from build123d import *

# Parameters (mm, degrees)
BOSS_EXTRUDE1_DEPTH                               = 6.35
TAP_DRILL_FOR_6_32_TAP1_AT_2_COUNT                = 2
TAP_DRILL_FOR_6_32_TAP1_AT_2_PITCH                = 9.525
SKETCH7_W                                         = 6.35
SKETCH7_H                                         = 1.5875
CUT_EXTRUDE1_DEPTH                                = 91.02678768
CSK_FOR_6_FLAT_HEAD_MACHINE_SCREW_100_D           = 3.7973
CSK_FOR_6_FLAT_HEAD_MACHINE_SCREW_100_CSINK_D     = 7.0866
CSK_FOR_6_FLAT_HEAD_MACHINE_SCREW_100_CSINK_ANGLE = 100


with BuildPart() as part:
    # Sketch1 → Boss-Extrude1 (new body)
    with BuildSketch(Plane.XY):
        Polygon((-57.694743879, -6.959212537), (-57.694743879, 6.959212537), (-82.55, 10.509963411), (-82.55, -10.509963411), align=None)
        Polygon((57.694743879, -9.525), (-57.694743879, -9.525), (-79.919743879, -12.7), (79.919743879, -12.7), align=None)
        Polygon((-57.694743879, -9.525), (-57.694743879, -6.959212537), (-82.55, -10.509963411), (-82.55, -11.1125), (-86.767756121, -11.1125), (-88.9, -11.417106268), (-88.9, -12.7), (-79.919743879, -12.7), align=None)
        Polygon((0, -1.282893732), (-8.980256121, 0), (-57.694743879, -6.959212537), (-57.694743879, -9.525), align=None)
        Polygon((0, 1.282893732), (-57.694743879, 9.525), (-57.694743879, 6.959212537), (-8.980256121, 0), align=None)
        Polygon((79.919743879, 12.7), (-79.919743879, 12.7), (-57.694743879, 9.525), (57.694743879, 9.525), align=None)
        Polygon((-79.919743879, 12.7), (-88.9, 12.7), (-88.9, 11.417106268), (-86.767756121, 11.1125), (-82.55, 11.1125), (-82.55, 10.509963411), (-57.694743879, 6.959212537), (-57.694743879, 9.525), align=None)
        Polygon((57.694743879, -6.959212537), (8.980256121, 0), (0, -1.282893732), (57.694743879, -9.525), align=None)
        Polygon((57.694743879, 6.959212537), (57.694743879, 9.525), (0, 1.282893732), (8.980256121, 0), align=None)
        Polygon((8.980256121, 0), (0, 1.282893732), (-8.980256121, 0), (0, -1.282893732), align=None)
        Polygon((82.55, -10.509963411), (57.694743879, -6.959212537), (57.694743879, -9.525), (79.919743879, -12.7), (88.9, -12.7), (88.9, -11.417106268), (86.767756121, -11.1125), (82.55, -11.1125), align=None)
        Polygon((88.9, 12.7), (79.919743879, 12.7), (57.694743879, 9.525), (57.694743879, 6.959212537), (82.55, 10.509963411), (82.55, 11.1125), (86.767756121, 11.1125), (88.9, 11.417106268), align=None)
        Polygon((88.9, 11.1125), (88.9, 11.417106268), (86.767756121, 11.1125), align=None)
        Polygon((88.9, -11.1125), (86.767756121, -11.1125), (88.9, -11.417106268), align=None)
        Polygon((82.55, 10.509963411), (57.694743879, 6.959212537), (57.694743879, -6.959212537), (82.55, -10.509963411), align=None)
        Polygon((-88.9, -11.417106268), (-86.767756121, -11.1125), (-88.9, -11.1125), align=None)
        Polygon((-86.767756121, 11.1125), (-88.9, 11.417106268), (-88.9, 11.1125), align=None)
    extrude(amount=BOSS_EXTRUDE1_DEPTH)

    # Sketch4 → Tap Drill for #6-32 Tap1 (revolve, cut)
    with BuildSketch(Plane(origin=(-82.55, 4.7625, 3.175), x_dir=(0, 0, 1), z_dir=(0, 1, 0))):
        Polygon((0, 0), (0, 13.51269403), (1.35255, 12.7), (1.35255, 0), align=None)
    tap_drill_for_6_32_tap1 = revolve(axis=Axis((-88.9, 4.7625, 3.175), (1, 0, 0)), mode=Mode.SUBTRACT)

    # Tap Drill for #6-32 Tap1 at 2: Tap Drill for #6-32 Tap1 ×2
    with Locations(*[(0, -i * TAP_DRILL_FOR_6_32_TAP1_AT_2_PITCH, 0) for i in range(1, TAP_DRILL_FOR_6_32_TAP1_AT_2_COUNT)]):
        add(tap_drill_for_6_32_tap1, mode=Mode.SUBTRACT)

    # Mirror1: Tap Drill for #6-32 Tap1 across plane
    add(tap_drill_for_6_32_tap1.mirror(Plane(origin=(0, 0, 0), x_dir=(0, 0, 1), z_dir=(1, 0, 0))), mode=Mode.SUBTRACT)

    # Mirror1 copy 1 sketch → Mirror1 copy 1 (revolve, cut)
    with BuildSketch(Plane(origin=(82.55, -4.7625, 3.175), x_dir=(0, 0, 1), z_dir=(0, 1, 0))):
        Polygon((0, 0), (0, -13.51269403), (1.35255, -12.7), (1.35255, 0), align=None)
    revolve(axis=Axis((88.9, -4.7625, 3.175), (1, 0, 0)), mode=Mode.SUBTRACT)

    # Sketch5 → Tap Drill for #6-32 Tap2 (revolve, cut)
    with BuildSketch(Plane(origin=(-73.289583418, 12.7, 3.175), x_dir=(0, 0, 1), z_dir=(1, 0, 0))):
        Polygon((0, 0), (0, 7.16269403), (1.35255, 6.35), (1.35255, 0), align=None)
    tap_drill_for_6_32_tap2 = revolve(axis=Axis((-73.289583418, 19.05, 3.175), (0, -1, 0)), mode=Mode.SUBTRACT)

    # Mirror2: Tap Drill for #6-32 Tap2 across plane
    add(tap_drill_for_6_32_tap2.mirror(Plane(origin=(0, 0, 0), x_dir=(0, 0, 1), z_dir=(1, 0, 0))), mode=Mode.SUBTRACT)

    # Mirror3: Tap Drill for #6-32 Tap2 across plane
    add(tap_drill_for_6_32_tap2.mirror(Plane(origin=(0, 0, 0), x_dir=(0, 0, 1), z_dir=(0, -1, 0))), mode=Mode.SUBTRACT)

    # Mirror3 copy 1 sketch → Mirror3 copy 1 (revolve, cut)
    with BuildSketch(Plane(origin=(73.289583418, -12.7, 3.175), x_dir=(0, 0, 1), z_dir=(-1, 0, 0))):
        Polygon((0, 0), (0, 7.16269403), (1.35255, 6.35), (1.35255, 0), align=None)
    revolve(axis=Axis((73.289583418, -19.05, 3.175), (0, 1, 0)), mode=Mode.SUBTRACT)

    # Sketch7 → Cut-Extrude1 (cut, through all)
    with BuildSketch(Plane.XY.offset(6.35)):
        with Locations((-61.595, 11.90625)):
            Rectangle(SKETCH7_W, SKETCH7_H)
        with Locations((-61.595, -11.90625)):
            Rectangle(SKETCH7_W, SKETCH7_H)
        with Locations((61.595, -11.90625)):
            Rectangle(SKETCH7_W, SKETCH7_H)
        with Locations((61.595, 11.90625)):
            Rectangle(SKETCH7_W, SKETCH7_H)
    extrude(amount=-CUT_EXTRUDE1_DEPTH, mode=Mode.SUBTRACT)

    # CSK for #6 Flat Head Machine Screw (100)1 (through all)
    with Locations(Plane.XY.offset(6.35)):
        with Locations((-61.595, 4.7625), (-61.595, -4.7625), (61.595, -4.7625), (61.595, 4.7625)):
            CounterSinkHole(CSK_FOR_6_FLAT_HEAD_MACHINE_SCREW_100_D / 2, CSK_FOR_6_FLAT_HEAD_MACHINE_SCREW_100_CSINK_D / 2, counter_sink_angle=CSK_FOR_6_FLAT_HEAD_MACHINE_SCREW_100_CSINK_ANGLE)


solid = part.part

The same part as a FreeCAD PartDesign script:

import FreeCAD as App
import Part
import Sketcher
Q = App.Units.Quantity


def add_polygon(sketch, points):
    """Adds a closed chain of lines whose ends are joined by coincident constraints."""
    first, n = sketch.GeometryCount, len(points)
    for a, b in zip(points, points[1:] + points[:1]):
        sketch.addGeometry(Part.LineSegment(App.Vector(*a, 0), App.Vector(*b, 0)), False)
    for i in range(n):
        sketch.addConstraint(Sketcher.Constraint("Coincident", first + i, 2, first + (i + 1) % n, 1))

doc = App.newDocument("Part")
body = doc.addObject("PartDesign::Body", "Body")

# Sketch on XY plane
sketch1 = body.newObject("Sketcher::SketchObject", "Sketch")
sketch1.AttachmentSupport = (doc.getObject("XY_Plane"), [""])
sketch1.MapMode = "FlatFace"
add_polygon(sketch1, [(82.5, 11.1), (88.9, 11.1), (88.9, 12.7), (-88.9, 12.7), (-88.9, 11.1), (-82.5, 11.1), (-82.5, -11.1), (-88.9, -11.1), (-88.9, -12.7), (88.9, -12.7), (88.9, -11.1), (82.5, -11.1)])  # lines 0-11
add_polygon(sketch1, [(9, 0), (57.7, 7), (57.7, -7)])  # lines 12-14
add_polygon(sketch1, [(0, -1.3), (57.7, -9.5), (-57.7, -9.5)])  # lines 15-17
add_polygon(sketch1, [(-57.7, 7), (-9, 0), (-57.7, -7)])  # lines 18-20
add_polygon(sketch1, [(-57.7, 9.5), (57.7, 9.5), (0, 1.3)])  # lines 21-23
sketch1.addConstraint(Sketcher.Constraint("Horizontal", 0))
sketch1.addConstraint(Sketcher.Constraint("Vertical", 1))
sketch1.addConstraint(Sketcher.Constraint("Horizontal", 2))
sketch1.addConstraint(Sketcher.Constraint("Vertical", 3))
sketch1.addConstraint(Sketcher.Constraint("Horizontal", 4))
sketch1.addConstraint(Sketcher.Constraint("Vertical", 5))
sketch1.addConstraint(Sketcher.Constraint("Horizontal", 6))
sketch1.addConstraint(Sketcher.Constraint("Vertical", 7))
sketch1.addConstraint(Sketcher.Constraint("Horizontal", 8))
sketch1.addConstraint(Sketcher.Constraint("Vertical", 9))
sketch1.addConstraint(Sketcher.Constraint("Horizontal", 10))
sketch1.addConstraint(Sketcher.Constraint("Vertical", 11))
sketch1.addConstraint(Sketcher.Constraint("Vertical", 13))
sketch1.addConstraint(Sketcher.Constraint("Horizontal", 16))
sketch1.addConstraint(Sketcher.Constraint("Vertical", 20))
sketch1.addConstraint(Sketcher.Constraint("Horizontal", 21))
sketch1.addConstraint(Sketcher.Constraint("Symmetric", 0, 2, 6, 2, -1, 1))
sketch1.addConstraint(Sketcher.Constraint("Symmetric", 2, 2, 8, 2, -1, 1))
sketch1.addConstraint(Sketcher.Constraint("Symmetric", 4, 2, 10, 2, -1, 1))
sketch1.addConstraint(Sketcher.Constraint("Symmetric", 14, 2, 18, 2, -1, 1))
sketch1.addConstraint(Sketcher.Constraint("Symmetric", 12, 2, 19, 2, -1, 1))
sketch1.addConstraint(Sketcher.Constraint("Symmetric", 16, 2, 21, 2, -1, 1))
sketch1.addConstraint(Sketcher.Constraint("Symmetric", 17, 2, 22, 2, -1, 1))
sketch1.addConstraint(Sketcher.Constraint("Symmetric", 0, 2, 3, 2, -2))
sketch1.addConstraint(Sketcher.Constraint("PointOnObject", 14, 2, -1))
sketch1.addConstraint(Sketcher.Constraint("PointOnObject", 17, 2, -2))
sketch1.addConstraint(Sketcher.Constraint("Parallel", 14, 15))
sketch1.addConstraint(Sketcher.Constraint("Parallel", 12, 17))
sketch1.addConstraint(Sketcher.Constraint("Parallel", 15, 18))
sketch1.addConstraint(Sketcher.Constraint("Parallel", 18, 23))
sketch1.addConstraint(Sketcher.Constraint("Horizontal", 13, 2, 19, 2))
sketch1.addConstraint(Sketcher.Constraint("Vertical", 13, 2, 15, 2))
sketch1.addConstraint(Sketcher.Constraint("DistanceX", 2, 2, 2, 1, Q("7 in")))
sketch1.addConstraint(Sketcher.Constraint("DistanceY", 7, 2, 2, 2, Q("1 in")))
sketch1.addConstraint(Sketcher.Constraint("DistanceX", 0, 1, 0, 2, Q("0.25 in")))
sketch1.addConstraint(Sketcher.Constraint("DistanceY", 1, 1, 1, 2, Q("0.0625 in")))
sketch1.addConstraint(Sketcher.Constraint("DistanceY", 15, 2, 21, 2, Q("0.75 in")))
sketch1.addConstraint(Sketcher.Constraint("DistanceX", 18, 2, 12, 2, Q("2.625 in")))
sketch1.addConstraint(Sketcher.Constraint("DistanceX", 16, 2, 16, 1, 115.389488))
sketch1.addConstraint(Sketcher.Constraint("DistanceY", 13, 2, 13, 1, 13.918425))
pad1 = body.newObject("PartDesign::Pad", "Pad")
pad1.Profile = sketch1
pad1.Length = Q("0.25 in")

# Sketch on XZ plane
sketch2 = body.newObject("Sketcher::SketchObject", "Sketch001")
sketch2.AttachmentSupport = (doc.getObject("XZ_Plane"), [""])
sketch2.MapMode = "FlatFace"
sketch2.AttachmentOffset = App.Placement(App.Vector(0, 0, -0.1875 * 25.4), App.Rotation())
add_polygon(sketch2, [(-69, 3.2), (-82.5, 3.2), (-82.5, 4.5), (-69.8, 4.5)])  # lines 0-3
sketch2.addGeometry(Part.LineSegment(App.Vector(-82.5, 3.2, 0), App.Vector(-69, 3.2, 0)), True)  # axis
sketch2.addConstraint(Sketcher.Constraint("Horizontal", 0))
sketch2.addConstraint(Sketcher.Constraint("Vertical", 1))
sketch2.addConstraint(Sketcher.Constraint("Horizontal", 2))
sketch2.addConstraint(Sketcher.Constraint("Horizontal", 4))
sketch2.addConstraint(Sketcher.Constraint("Coincident", 4, 1, 0, 2))
sketch2.addConstraint(Sketcher.Constraint("Equal", 0, 4))
sketch2.addConstraint(Sketcher.Constraint("DistanceX", 2, 1, 2, 2, Q("0.5 in")))
sketch2.addConstraint(Sketcher.Constraint("Angle", 3, Q("-59 deg")))
sketch2.addConstraint(Sketcher.Constraint("DistanceX", 0, 2, -1, 1, Q("3.25 in")))
sketch2.addConstraint(Sketcher.Constraint("DistanceY", -1, 1, 0, 2, Q("0.125 in")))
sketch2.addConstraint(Sketcher.Constraint("DistanceY", 1, 1, 1, 2, 1.35255))
groove = body.newObject("PartDesign::Groove", "Groove")
groove.Profile = sketch2
groove.ReferenceAxis = (sketch2, ["Axis0"])
groove.Angle = 360
doc.recompute()

linearpattern = body.newObject("PartDesign::LinearPattern", "LinearPattern")
linearpattern.Originals = [groove]
linearpattern.Direction = (doc.getObject("Y_Axis"), [""])
linearpattern.Mode = "offset"
linearpattern.Offset = Q("0.375 in")
linearpattern.Occurrences = 2
linearpattern.Reversed = True
body.Tip = linearpattern
doc.recompute()

mirrored = body.newObject("PartDesign::Mirrored", "Mirrored")
mirrored.Originals = [groove]
mirrored.MirrorPlane = (doc.getObject("YZ_Plane"), [""])
body.Tip = mirrored

# Sketch on XZ plane
sketch3 = body.newObject("Sketcher::SketchObject", "Sketch002")
sketch3.AttachmentSupport = (doc.getObject("XZ_Plane"), [""])
sketch3.MapMode = "FlatFace"
sketch3.AttachmentOffset = App.Placement(App.Vector(0, 0, 0.1875 * 25.4), App.Rotation())
add_polygon(sketch3, [(82.5, 3.2), (69, 3.2), (69.8, 4.5), (82.5, 4.5)])  # lines 0-3
sketch3.addGeometry(Part.LineSegment(App.Vector(69, 3.2, 0), App.Vector(82.5, 3.2, 0)), True)  # axis
sketch3.addConstraint(Sketcher.Constraint("Horizontal", 0))
sketch3.addConstraint(Sketcher.Constraint("Horizontal", 2))
sketch3.addConstraint(Sketcher.Constraint("Vertical", 3))
sketch3.addConstraint(Sketcher.Constraint("Horizontal", 4))
sketch3.addConstraint(Sketcher.Constraint("Coincident", 4, 1, 0, 2))
sketch3.addConstraint(Sketcher.Constraint("Vertical", 2, 2, 4, 2))
sketch3.addConstraint(Sketcher.Constraint("DistanceX", 2, 1, 2, 2, Q("0.5 in")))
sketch3.addConstraint(Sketcher.Constraint("Angle", 1, Q("59 deg")))
sketch3.addConstraint(Sketcher.Constraint("DistanceX", -1, 1, 1, 2, Q("2.75 in")))
sketch3.addConstraint(Sketcher.Constraint("DistanceY", -1, 1, 0, 2, Q("0.125 in")))
sketch3.addConstraint(Sketcher.Constraint("DistanceY", 3, 2, 3, 1, 1.35255))
groove2 = body.newObject("PartDesign::Groove", "Groove001")
groove2.Profile = sketch3
groove2.ReferenceAxis = (sketch3, ["Axis0"])
groove2.Angle = 360

# Sketch on YZ plane
sketch4 = body.newObject("Sketcher::SketchObject", "Sketch003")
sketch4.AttachmentSupport = (doc.getObject("YZ_Plane"), [""])
sketch4.MapMode = "FlatFace"
sketch4.AttachmentOffset = App.Placement(App.Vector(0, 0, -73.289583), App.Rotation())
add_polygon(sketch4, [(5.5, 3.2), (12.7, 3.2), (12.7, 4.5), (6.3, 4.5)])  # lines 0-3
sketch4.addGeometry(Part.LineSegment(App.Vector(12.7, 3.2, 0), App.Vector(5.5, 3.2, 0)), True)  # axis
sketch4.addConstraint(Sketcher.Constraint("Horizontal", 0))
sketch4.addConstraint(Sketcher.Constraint("Vertical", 1))
sketch4.addConstraint(Sketcher.Constraint("Horizontal", 2))
sketch4.addConstraint(Sketcher.Constraint("Horizontal", 4))
sketch4.addConstraint(Sketcher.Constraint("Coincident", 4, 1, 0, 2))
sketch4.addConstraint(Sketcher.Constraint("Equal", 0, 4))
sketch4.addConstraint(Sketcher.Constraint("Angle", 3, Q("-121 deg")))
sketch4.addConstraint(Sketcher.Constraint("DistanceX", 2, 2, 2, 1, Q("0.25 in")))
sketch4.addConstraint(Sketcher.Constraint("DistanceX", -1, 1, 0, 2, Q("0.5 in")))
sketch4.addConstraint(Sketcher.Constraint("DistanceY", -1, 1, 0, 2, Q("0.125 in")))
sketch4.addConstraint(Sketcher.Constraint("DistanceY", 1, 1, 1, 2, 1.35255))
groove3 = body.newObject("PartDesign::Groove", "Groove002")
groove3.Profile = sketch4
groove3.ReferenceAxis = (sketch4, ["Axis0"])
groove3.Angle = 360
doc.recompute()

mirrored2 = body.newObject("PartDesign::Mirrored", "Mirrored001")
mirrored2.Originals = [groove3]
mirrored2.MirrorPlane = (doc.getObject("YZ_Plane"), [""])
body.Tip = mirrored2
doc.recompute()

mirrored3 = body.newObject("PartDesign::Mirrored", "Mirrored002")
mirrored3.Originals = [groove3]
mirrored3.MirrorPlane = (doc.getObject("XZ_Plane"), [""])
body.Tip = mirrored3

# Sketch on YZ plane
sketch5 = body.newObject("Sketcher::SketchObject", "Sketch004")
sketch5.AttachmentSupport = (doc.getObject("YZ_Plane"), [""])
sketch5.MapMode = "FlatFace"
sketch5.AttachmentOffset = App.Placement(App.Vector(0, 0, 73.289583), App.Rotation())
add_polygon(sketch5, [(-5.5, 3.2), (-12.7, 3.2), (-12.7, 4.5), (-6.3, 4.5)])  # lines 0-3
sketch5.addGeometry(Part.LineSegment(App.Vector(-12.7, 3.2, 0), App.Vector(-5.5, 3.2, 0)), True)  # axis
sketch5.addConstraint(Sketcher.Constraint("Horizontal", 0))
sketch5.addConstraint(Sketcher.Constraint("Vertical", 1))
sketch5.addConstraint(Sketcher.Constraint("Horizontal", 2))
sketch5.addConstraint(Sketcher.Constraint("Horizontal", 4))
sketch5.addConstraint(Sketcher.Constraint("Coincident", 4, 1, 0, 2))
sketch5.addConstraint(Sketcher.Constraint("Equal", 0, 4))
sketch5.addConstraint(Sketcher.Constraint("Angle", 3, Q("-59 deg")))
sketch5.addConstraint(Sketcher.Constraint("DistanceX", 2, 1, 2, 2, Q("0.25 in")))
sketch5.addConstraint(Sketcher.Constraint("DistanceX", 0, 2, -1, 1, Q("0.5 in")))
sketch5.addConstraint(Sketcher.Constraint("DistanceY", -1, 1, 0, 2, Q("0.125 in")))
sketch5.addConstraint(Sketcher.Constraint("DistanceY", 1, 1, 1, 2, 1.35255))
groove4 = body.newObject("PartDesign::Groove", "Groove003")
groove4.Profile = sketch5
groove4.ReferenceAxis = (sketch5, ["Axis0"])
groove4.Angle = 360

# Sketch on XY plane
sketch6 = body.newObject("Sketcher::SketchObject", "Sketch005")
sketch6.AttachmentSupport = (doc.getObject("XY_Plane"), [""])
sketch6.MapMode = "FlatFace"
sketch6.AttachmentOffset = App.Placement(App.Vector(0, 0, 0.25 * 25.4), App.Rotation())
add_polygon(sketch6, [(-64.8, 12.7), (-64.8, 11.1), (-58.4, 11.1), (-58.4, 12.7)])  # lines 0-3
add_polygon(sketch6, [(-64.8, -11.1), (-64.8, -12.7), (-58.4, -12.7), (-58.4, -11.1)])  # lines 4-7
add_polygon(sketch6, [(58.4, -11.1), (58.4, -12.7), (64.8, -12.7), (64.8, -11.1)])  # lines 8-11
add_polygon(sketch6, [(58.4, 12.7), (58.4, 11.1), (64.8, 11.1), (64.8, 12.7)])  # lines 12-15
sketch6.addConstraint(Sketcher.Constraint("Vertical", 0))
sketch6.addConstraint(Sketcher.Constraint("Horizontal", 1))
sketch6.addConstraint(Sketcher.Constraint("Vertical", 2))
sketch6.addConstraint(Sketcher.Constraint("Horizontal", 3))
sketch6.addConstraint(Sketcher.Constraint("Vertical", 4))
sketch6.addConstraint(Sketcher.Constraint("Horizontal", 5))
sketch6.addConstraint(Sketcher.Constraint("Vertical", 6))
sketch6.addConstraint(Sketcher.Constraint("Horizontal", 7))
sketch6.addConstraint(Sketcher.Constraint("Vertical", 8))
sketch6.addConstraint(Sketcher.Constraint("Horizontal", 9))
sketch6.addConstraint(Sketcher.Constraint("Vertical", 10))
sketch6.addConstraint(Sketcher.Constraint("Horizontal", 11))
sketch6.addConstraint(Sketcher.Constraint("Vertical", 12))
sketch6.addConstraint(Sketcher.Constraint("Horizontal", 13))
sketch6.addConstraint(Sketcher.Constraint("Vertical", 14))
sketch6.addConstraint(Sketcher.Constraint("Horizontal", 15))
sketch6.addConstraint(Sketcher.Constraint("Symmetric", 2, 2, 8, 2, -1, 1))
sketch6.addConstraint(Sketcher.Constraint("Symmetric", 0, 2, 10, 2, -1, 1))
sketch6.addConstraint(Sketcher.Constraint("Symmetric", 6, 2, 12, 2, -1, 1))
sketch6.addConstraint(Sketcher.Constraint("Symmetric", 4, 2, 14, 2, -1, 1))
sketch6.addConstraint(Sketcher.Constraint("Symmetric", 5, 2, 8, 2, -2))
sketch6.addConstraint(Sketcher.Constraint("Symmetric", 7, 2, 10, 2, -2))
sketch6.addConstraint(Sketcher.Constraint("DistanceY", 4, 2, 3, 2, Q("1 in")))
sketch6.addConstraint(Sketcher.Constraint("DistanceX", 1, 1, 1, 2, Q("0.25 in")))
sketch6.addConstraint(Sketcher.Constraint("DistanceX", 1, 2, -1, 1, Q("2.3 in")))
sketch6.addConstraint(Sketcher.Constraint("DistanceY", 0, 2, 0, 1, Q("0.0625 in")))
pocket1 = body.newObject("PartDesign::Pocket", "Pocket")
pocket1.Profile = sketch6
pocket1.Type = "ThroughAll"

# Sketch on XY plane
sketch7 = body.newObject("Sketcher::SketchObject", "Sketch006")
sketch7.AttachmentSupport = (doc.getObject("XY_Plane"), [""])
sketch7.MapMode = "FlatFace"
sketch7.AttachmentOffset = App.Placement(App.Vector(0, 0, 0.25 * 25.4), App.Rotation())
sketch7.addGeometry(Part.Circle(App.Vector(-61.6, 4.8, 0), App.Vector(0, 0, 1), 1.9), False)
sketch7.addGeometry(Part.Circle(App.Vector(-61.6, -4.8, 0), App.Vector(0, 0, 1), 1.9), False)
sketch7.addGeometry(Part.Circle(App.Vector(61.6, -4.8, 0), App.Vector(0, 0, 1), 1.9), False)
sketch7.addGeometry(Part.Circle(App.Vector(61.6, 4.8, 0), App.Vector(0, 0, 1), 1.9), False)
sketch7.addConstraint(Sketcher.Constraint("Equal", 0, 1))
sketch7.addConstraint(Sketcher.Constraint("Equal", 1, 2))
sketch7.addConstraint(Sketcher.Constraint("Equal", 2, 3))
sketch7.addConstraint(Sketcher.Constraint("Symmetric", 0, 3, 2, 3, -1, 1))
sketch7.addConstraint(Sketcher.Constraint("Symmetric", 1, 3, 3, 3, -1, 1))
sketch7.addConstraint(Sketcher.Constraint("Symmetric", 1, 3, 2, 3, -2))
sketch7.addConstraint(Sketcher.Constraint("Diameter", 0, Q("0.1495 in")))
sketch7.addConstraint(Sketcher.Constraint("DistanceX", 1, 3, 2, 3, Q("4.85 in")))
sketch7.addConstraint(Sketcher.Constraint("DistanceY", -1, 1, 0, 3, Q("0.1875 in")))
doc.recompute()
hole = body.newObject("PartDesign::Hole", "Hole")
hole.Profile = sketch7
hole.ThreadType = "None"
hole.Diameter = Q("0.1495 in")
hole.DepthType = "ThroughAll"
hole.HoleCutType = "Countersink"
hole.HoleCutDiameter = Q("0.279 in")
hole.HoleCutCountersinkAngle = 100

doc.recompute()
